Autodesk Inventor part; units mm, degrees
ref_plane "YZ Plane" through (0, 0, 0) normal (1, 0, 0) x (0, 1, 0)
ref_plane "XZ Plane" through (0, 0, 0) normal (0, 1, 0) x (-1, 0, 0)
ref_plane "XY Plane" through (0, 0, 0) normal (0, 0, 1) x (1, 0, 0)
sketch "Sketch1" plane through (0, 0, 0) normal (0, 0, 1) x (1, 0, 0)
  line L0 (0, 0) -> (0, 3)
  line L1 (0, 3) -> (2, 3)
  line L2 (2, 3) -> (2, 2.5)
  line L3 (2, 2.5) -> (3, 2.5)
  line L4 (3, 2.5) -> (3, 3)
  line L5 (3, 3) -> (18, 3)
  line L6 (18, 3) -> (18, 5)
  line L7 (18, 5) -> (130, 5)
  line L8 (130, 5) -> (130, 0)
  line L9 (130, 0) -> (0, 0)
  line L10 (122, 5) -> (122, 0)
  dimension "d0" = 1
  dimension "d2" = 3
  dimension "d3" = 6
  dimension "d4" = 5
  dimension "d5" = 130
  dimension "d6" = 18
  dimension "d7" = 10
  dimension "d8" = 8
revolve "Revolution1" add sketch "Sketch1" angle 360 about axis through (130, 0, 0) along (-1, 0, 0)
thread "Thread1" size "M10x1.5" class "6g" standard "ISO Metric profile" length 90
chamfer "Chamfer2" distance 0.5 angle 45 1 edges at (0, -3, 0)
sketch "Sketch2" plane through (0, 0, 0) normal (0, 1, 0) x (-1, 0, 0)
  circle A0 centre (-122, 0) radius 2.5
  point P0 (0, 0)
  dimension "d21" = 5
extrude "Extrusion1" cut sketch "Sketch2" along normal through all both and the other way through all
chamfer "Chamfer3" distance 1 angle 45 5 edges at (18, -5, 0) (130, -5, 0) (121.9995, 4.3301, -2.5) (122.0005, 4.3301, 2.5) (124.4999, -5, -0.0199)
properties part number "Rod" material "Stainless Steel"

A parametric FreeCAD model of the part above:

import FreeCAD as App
import Part
import Sketcher

V = App.Vector


def edges_at(feature, points):
    """Names of the edges that pass closest to the given points."""
    edges = feature.Shape.Edges
    near = lambda p: min(range(len(edges)), key=lambda i: edges[i].distToShape(Part.Vertex(*p))[0])
    return sorted({f"Edge{near(p) + 1}" for p in points})

doc = App.newDocument("Part")
params = doc.addObject("Spreadsheet::Sheet", "Params")
for row, (alias, value) in enumerate([
    ("sketch1_width", "130 mm"),
    ("sketch1_width2", "1 mm"),
    ("sketch1_height", "3 mm"),
    ("sketch1_height2", "5 mm"),
    ("sketch1_height3", "0.5 mm"),
    ("revolution_angle", "360 deg"),
    ("chamfer_size", "0.5 mm"),
    ("sketch2_diameter", "5 mm"),
    ("chamfer2_size", "1 mm"),
], start=1):
    params.set(f"A{row}", alias)
    params.set(f"B{row}", "=" + value)
    params.setAlias(f"B{row}", alias)

body = doc.addObject("PartDesign::Body", "Body")

# Sketch on XY plane
sketch1 = doc.addObject("Sketcher::SketchObject", "Sketch")
body.addObject(sketch1)
sketch1.AttachmentSupport = (doc.XY_Plane, [""])
sketch1.MapMode = "FlatFace"
sketch1.addGeometry([
    Part.LineSegment(V(0, 3, 0), V(0, 0, 0)),  # 0
    Part.LineSegment(V(0, 0, 0), V(130, 0, 0)),  # 1
    Part.LineSegment(V(130, 0, 0), V(130, 5, 0)),  # 2
    Part.LineSegment(V(130, 5, 0), V(18, 5, 0)),  # 3
    Part.LineSegment(V(18, 5, 0), V(18, 3, 0)),  # 4
    Part.LineSegment(V(18, 3, 0), V(3, 3, 0)),  # 5
    Part.LineSegment(V(3, 3, 0), V(3, 2.5, 0)),  # 6
    Part.LineSegment(V(3, 2.5, 0), V(2, 2.5, 0)),  # 7
    Part.LineSegment(V(2, 2.5, 0), V(2, 3, 0)),  # 8
    Part.LineSegment(V(2, 3, 0), V(0, 3, 0)),  # 9
], False)
sketch1.addConstraint([
    Sketcher.Constraint("Coincident", 0, 2, 1, 1),
    Sketcher.Constraint("Coincident", 1, 2, 2, 1),
    Sketcher.Constraint("Coincident", 2, 2, 3, 1),
    Sketcher.Constraint("Coincident", 3, 2, 4, 1),
    Sketcher.Constraint("Coincident", 4, 2, 5, 1),
    Sketcher.Constraint("Coincident", 5, 2, 6, 1),
    Sketcher.Constraint("Coincident", 6, 2, 7, 1),
    Sketcher.Constraint("Coincident", 7, 2, 8, 1),
    Sketcher.Constraint("Coincident", 8, 2, 9, 1),
    Sketcher.Constraint("Coincident", 9, 2, 0, 1),
    Sketcher.Constraint("Vertical", 0),
    Sketcher.Constraint("Horizontal", 1),
    Sketcher.Constraint("Vertical", 2),
    Sketcher.Constraint("Horizontal", 3),
    Sketcher.Constraint("Vertical", 4),
    Sketcher.Constraint("Horizontal", 5),
    Sketcher.Constraint("Vertical", 6),
    Sketcher.Constraint("Horizontal", 7),
    Sketcher.Constraint("Vertical", 8),
    Sketcher.Constraint("Horizontal", 9),
    Sketcher.Constraint("Coincident", 0, 2, -1, 1),
    Sketcher.Constraint("Horizontal", 5, 2, 8, 2),
    Sketcher.Constraint("Equal", 9, 4),
    Sketcher.Constraint("DistanceX", 1, 1, 1, 2, 130.0),
    Sketcher.Constraint("DistanceX", 7, 2, 7, 1, 1.0),
    Sketcher.Constraint("DistanceY", 0, 2, 0, 1, 3.0),
    Sketcher.Constraint("DistanceY", 2, 1, 2, 2, 5.0),
    Sketcher.Constraint("DistanceX", -1, 1, 3, 2, 18.0),
    Sketcher.Constraint("DistanceY", 6, 2, 6, 1, 0.5),
])
sketch1.setExpression("Constraints[23]", "Params.sketch1_width")
sketch1.setExpression("Constraints[24]", "Params.sketch1_width2")
sketch1.setExpression("Constraints[25]", "Params.sketch1_height")
sketch1.setExpression("Constraints[26]", "Params.sketch1_height2")
sketch1.setExpression("Constraints[28]", "Params.sketch1_height3")
revolution = doc.addObject("PartDesign::Revolution", "Revolution")
body.addObject(revolution)
revolution.Profile = sketch1
revolution.ReferenceAxis = (sketch1, ["H_Axis"])
revolution.setExpression("Angle", "Params.revolution_angle")
doc.recompute()

chamfer = doc.addObject("PartDesign::Chamfer", "Chamfer")
body.addObject(chamfer)
chamfer.Base = (revolution, edges_at(revolution, [(0, -3, 0)]))
chamfer.setExpression("Size", "Params.chamfer_size")

# Sketch on XZ plane
sketch2 = doc.addObject("Sketcher::SketchObject", "Sketch001")
body.addObject(sketch2)
sketch2.AttachmentSupport = (doc.XZ_Plane, [""])
sketch2.MapMode = "FlatFace"
sketch2.addGeometry(Part.Circle(V(122, 0, 0), V(0, 0, 1), 2.5), False)
sketch2.addConstraint([
    Sketcher.Constraint("PointOnObject", 0, 3, -1),
    Sketcher.Constraint("Diameter", 0, 5.0),
    Sketcher.Constraint("DistanceX", -1, 1, 0, 3, 122.0),
])
sketch2.setExpression("Constraints[1]", "Params.sketch2_diameter")
pocket1 = doc.addObject("PartDesign::Pocket", "Pocket")
body.addObject(pocket1)
pocket1.Profile = sketch2
pocket1.Type = "ThroughAll"
pocket1.Midplane = True
doc.recompute()

chamfer2 = doc.addObject("PartDesign::Chamfer", "Chamfer001")
body.addObject(chamfer2)
chamfer2.Base = (pocket1, edges_at(pocket1, [
    (18, -5, 0),
    (130, -5, 0),
    (121.999, 4.33, -2.5),
    (122.001, 4.33, 2.5),
    (124.5, -5, -0.02),
]))
chamfer2.setExpression("Size", "Params.chamfer2_size")

doc.recompute()
